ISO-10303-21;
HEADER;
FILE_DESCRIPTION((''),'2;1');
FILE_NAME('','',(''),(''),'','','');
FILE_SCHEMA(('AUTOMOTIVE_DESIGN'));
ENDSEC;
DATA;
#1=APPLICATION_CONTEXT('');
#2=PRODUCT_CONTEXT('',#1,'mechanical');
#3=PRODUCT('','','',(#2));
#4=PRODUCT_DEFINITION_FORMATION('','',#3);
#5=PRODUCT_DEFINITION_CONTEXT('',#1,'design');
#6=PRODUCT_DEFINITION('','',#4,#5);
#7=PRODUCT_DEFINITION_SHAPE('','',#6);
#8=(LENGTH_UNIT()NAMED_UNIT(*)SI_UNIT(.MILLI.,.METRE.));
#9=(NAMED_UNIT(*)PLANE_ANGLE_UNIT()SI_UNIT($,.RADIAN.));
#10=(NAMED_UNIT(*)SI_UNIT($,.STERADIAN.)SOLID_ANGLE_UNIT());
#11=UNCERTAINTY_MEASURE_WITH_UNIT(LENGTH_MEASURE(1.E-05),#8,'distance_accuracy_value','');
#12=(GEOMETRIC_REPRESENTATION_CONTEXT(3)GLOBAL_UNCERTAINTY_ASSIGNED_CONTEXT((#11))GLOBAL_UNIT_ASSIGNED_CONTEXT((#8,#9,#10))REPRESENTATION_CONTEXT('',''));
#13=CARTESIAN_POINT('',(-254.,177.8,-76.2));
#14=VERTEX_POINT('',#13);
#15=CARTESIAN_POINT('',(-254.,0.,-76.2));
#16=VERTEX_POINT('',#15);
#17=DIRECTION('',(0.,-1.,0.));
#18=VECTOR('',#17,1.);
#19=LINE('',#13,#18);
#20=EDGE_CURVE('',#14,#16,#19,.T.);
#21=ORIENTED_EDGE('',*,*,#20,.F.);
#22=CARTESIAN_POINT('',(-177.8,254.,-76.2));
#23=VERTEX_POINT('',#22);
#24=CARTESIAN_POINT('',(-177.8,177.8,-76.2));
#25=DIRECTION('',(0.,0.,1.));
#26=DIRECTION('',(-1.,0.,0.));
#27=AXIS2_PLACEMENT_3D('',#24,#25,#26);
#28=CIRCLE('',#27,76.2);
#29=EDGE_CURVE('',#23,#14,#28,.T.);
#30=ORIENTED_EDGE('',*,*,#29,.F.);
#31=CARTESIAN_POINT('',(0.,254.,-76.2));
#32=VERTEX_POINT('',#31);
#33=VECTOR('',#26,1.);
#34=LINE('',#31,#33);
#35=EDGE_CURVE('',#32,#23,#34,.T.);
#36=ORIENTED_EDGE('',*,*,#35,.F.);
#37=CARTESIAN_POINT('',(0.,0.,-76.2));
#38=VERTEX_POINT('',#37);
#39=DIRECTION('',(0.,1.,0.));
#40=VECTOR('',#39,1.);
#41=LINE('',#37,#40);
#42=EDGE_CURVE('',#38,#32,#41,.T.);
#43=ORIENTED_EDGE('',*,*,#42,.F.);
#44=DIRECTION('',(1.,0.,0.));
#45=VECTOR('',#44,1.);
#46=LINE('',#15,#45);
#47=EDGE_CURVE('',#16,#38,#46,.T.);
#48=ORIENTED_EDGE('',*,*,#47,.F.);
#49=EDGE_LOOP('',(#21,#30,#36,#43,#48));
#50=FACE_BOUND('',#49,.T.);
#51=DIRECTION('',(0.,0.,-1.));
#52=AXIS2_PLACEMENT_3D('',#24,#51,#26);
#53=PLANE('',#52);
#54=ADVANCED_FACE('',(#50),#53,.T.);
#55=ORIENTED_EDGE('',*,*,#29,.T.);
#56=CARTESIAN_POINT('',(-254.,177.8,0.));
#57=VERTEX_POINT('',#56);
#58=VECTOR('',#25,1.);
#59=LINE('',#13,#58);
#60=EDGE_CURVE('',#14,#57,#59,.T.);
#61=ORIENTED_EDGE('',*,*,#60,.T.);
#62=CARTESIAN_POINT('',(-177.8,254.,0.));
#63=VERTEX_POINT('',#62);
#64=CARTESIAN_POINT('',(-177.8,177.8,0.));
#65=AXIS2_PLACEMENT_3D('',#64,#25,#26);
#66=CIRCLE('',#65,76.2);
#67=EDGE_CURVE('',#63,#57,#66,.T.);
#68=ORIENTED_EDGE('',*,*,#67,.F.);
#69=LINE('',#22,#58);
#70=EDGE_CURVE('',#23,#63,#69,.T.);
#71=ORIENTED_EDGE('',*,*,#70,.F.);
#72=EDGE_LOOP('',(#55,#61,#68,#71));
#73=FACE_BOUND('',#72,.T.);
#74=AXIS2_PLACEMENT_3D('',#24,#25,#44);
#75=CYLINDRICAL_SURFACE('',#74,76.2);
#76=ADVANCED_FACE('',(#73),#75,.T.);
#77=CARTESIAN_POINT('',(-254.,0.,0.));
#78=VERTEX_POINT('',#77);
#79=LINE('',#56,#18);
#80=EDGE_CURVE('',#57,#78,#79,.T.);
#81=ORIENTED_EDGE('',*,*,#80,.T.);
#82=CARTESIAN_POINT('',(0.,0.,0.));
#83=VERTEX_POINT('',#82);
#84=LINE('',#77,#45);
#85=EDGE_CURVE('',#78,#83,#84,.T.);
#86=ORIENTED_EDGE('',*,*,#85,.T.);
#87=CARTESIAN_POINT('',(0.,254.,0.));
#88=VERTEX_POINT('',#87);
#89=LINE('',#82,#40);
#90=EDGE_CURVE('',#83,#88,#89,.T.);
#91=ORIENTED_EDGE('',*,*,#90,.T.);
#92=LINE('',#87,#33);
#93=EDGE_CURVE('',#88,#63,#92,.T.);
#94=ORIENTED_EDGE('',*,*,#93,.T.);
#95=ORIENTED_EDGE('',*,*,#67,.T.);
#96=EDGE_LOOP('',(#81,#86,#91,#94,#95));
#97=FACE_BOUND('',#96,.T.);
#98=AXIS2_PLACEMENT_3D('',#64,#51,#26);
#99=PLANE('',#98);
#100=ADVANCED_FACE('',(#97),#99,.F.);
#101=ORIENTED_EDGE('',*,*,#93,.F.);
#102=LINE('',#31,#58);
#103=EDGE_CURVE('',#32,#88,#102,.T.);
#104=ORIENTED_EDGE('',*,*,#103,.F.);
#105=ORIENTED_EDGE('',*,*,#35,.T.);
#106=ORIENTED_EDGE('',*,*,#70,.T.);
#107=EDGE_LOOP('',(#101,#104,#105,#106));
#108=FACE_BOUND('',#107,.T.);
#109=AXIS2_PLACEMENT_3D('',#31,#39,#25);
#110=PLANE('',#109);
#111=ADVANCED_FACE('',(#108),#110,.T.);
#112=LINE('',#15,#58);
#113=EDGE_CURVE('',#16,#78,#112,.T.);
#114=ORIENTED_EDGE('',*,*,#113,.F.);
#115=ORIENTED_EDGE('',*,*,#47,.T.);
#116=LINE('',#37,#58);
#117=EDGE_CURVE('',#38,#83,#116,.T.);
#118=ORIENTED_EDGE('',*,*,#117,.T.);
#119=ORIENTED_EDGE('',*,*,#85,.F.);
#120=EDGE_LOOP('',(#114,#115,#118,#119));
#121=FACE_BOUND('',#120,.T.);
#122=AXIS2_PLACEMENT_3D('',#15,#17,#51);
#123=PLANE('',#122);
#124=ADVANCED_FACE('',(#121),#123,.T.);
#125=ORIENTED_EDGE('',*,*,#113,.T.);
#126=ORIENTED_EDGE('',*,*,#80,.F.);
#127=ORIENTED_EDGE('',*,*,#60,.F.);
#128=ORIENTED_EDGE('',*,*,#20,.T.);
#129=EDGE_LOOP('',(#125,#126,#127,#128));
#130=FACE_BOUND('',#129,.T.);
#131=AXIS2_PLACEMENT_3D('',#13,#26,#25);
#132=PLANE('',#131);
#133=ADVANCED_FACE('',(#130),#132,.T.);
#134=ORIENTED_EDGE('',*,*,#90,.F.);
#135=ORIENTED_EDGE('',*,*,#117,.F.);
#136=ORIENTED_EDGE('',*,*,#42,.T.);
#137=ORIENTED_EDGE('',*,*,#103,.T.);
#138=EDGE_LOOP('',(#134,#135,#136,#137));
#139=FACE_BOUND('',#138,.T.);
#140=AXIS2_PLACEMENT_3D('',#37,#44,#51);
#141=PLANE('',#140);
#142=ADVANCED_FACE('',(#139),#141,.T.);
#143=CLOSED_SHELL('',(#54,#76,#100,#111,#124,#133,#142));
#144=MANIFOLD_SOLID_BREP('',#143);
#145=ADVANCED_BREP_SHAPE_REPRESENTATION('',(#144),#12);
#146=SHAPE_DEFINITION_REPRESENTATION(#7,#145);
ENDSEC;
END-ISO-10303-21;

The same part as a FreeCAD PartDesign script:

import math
import FreeCAD as App
import Part
import Sketcher
from FreeCAD import Vector
Q = App.Units.Quantity

doc = App.newDocument("Part")
body = doc.addObject("PartDesign::Body", "Body")

sketch1 = body.newObject("Sketcher::SketchObject", "Sketch")
sketch1.AttachmentSupport = (doc.getObject("XY_Plane"), [""])
sketch1.MapMode = "FlatFace"
sketch1.addGeometry([
    Part.LineSegment(Vector(0, 0, 0), Vector(0, 254, 0)),
    Part.LineSegment(Vector(0, 254, 0), Vector(-178, 254, 0)),
    Part.ArcOfCircle(Part.Circle(Vector(-178, 178, 0), Vector(0, 0, 1), 76), math.radians(90), math.radians(180)),
    Part.LineSegment(Vector(-254, 178, 0), Vector(-254, 0, 0)),
    Part.LineSegment(Vector(-254, 0, 0), Vector(0, 0, 0)),
], False)
sketch1.addConstraint([
    Sketcher.Constraint("Coincident", 0, 2, 1, 1),
    Sketcher.Constraint("Tangent", 1, 2, 2, 1),
    Sketcher.Constraint("Tangent", 2, 2, 3, 1),
    Sketcher.Constraint("Coincident", 3, 2, 4, 1),
    Sketcher.Constraint("Coincident", 4, 2, 0, 1),
    Sketcher.Constraint("Vertical", 0),
    Sketcher.Constraint("Horizontal", 1),
    Sketcher.Constraint("Vertical", 3),
    Sketcher.Constraint("Horizontal", 4),
    Sketcher.Constraint("Coincident", 4, 2, -1, 1),
    Sketcher.Constraint("Equal", 4, 0),
    Sketcher.Constraint("Radius", 2, Q("3 in")),
    Sketcher.Constraint("DistanceX", 1, 2, 1, 1, Q("7 in")),
])
pad1 = body.newObject("PartDesign::Pad", "Pad")
pad1.Profile = sketch1
pad1.Length = Q("3 in")
pad1.Reversed = True

doc.recompute()
